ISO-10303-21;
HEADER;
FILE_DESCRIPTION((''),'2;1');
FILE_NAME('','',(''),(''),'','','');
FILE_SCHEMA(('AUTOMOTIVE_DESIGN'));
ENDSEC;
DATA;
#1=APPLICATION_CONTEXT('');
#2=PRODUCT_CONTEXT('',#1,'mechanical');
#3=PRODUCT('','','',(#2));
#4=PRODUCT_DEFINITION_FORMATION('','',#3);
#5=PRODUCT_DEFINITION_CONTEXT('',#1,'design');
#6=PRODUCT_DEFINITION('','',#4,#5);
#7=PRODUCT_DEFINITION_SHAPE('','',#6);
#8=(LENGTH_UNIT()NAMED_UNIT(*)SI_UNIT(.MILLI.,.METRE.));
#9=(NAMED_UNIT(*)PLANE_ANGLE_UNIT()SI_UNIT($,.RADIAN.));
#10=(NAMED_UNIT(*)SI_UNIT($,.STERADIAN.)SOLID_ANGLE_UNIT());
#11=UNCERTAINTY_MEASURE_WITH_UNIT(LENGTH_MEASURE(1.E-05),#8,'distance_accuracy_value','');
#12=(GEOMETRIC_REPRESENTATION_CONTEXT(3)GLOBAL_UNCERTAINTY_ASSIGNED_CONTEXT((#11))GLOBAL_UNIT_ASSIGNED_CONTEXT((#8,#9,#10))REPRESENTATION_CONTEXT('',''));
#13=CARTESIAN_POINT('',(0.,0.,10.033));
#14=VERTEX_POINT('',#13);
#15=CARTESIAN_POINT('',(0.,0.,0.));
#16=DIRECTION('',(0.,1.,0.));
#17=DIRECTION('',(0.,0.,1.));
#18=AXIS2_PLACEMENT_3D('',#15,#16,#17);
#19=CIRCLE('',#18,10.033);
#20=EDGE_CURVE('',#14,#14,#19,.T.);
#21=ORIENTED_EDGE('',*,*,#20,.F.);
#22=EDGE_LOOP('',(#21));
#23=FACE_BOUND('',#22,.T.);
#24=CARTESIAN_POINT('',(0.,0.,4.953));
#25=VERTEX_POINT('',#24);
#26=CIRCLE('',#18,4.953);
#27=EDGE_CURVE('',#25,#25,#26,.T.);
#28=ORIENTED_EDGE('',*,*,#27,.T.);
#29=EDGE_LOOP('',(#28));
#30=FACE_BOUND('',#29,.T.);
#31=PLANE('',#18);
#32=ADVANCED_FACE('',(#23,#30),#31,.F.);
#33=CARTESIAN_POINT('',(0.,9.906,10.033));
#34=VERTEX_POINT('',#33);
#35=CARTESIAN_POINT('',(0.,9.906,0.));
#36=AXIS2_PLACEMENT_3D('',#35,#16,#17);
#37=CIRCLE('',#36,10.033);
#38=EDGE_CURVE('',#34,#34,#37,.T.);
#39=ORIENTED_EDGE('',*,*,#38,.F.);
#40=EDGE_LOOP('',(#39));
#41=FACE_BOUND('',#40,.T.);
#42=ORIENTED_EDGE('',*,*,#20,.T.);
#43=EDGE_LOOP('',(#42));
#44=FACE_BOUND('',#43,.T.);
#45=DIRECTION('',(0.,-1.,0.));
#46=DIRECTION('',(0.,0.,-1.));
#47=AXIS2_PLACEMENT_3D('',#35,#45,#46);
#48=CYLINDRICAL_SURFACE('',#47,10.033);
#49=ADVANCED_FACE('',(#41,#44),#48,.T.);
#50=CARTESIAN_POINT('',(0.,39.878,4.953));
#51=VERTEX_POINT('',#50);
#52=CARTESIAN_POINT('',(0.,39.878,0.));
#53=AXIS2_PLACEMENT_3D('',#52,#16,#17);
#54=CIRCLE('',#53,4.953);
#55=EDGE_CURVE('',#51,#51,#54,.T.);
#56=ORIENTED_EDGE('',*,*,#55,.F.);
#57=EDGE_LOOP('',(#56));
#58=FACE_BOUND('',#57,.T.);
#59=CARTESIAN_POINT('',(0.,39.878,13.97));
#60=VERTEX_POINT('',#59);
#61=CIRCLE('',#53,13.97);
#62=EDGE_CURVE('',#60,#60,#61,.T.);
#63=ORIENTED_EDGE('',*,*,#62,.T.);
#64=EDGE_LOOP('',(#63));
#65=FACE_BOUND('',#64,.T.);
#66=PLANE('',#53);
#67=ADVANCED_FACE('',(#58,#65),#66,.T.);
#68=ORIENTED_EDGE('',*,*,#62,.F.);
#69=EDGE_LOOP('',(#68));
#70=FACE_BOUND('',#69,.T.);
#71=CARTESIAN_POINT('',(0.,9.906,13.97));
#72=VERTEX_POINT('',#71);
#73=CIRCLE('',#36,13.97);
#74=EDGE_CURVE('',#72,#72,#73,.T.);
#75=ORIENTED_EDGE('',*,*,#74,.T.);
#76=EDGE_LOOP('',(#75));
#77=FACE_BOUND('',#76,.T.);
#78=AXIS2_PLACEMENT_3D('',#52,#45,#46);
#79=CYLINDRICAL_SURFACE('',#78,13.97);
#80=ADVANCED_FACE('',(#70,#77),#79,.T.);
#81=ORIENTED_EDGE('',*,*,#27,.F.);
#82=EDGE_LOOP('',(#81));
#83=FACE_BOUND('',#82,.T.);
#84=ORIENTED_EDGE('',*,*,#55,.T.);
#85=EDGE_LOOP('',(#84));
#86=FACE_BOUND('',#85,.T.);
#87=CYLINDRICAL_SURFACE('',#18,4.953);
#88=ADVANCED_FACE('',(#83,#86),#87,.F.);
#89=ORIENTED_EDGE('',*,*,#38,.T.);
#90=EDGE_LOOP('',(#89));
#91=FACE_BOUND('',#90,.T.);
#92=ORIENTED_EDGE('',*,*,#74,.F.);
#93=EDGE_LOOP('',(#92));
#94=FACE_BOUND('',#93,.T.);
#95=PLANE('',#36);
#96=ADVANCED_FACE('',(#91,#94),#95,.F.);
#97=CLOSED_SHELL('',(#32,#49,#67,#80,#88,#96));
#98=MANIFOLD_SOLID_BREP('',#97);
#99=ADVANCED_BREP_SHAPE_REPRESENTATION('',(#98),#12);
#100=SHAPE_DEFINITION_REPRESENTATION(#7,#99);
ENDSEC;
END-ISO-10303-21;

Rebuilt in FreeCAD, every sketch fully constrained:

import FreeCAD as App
import Part
import Sketcher
Q = App.Units.Quantity

doc = App.newDocument("Part")
body = doc.addObject("PartDesign::Body", "Body")

# Sketch on XZ plane
sketch1 = body.newObject("Sketcher::SketchObject", "Sketch")
sketch1.AttachmentSupport = (doc.getObject("XZ_Plane"), [""])
sketch1.MapMode = "FlatFace"
sketch1.addGeometry(Part.Circle(App.Vector(0, 0, 0), App.Vector(0, 0, 1), 10), False)
sketch1.addConstraint([
    Sketcher.Constraint("Coincident", 0, 3, -1, 1),
    Sketcher.Constraint("Diameter", 0, Q("0.79 in")),
])
pad1 = body.newObject("PartDesign::Pad", "Pad")
pad1.Profile = sketch1
pad1.Length = Q("0.39 in")
pad1.Reversed = True

# Sketch on XZ plane
sketch2 = body.newObject("Sketcher::SketchObject", "Sketch001")
sketch2.AttachmentSupport = (doc.getObject("XZ_Plane"), [""])
sketch2.MapMode = "FlatFace"
sketch2.AttachmentOffset = App.Placement(App.Vector(0, 0, -0.39 * 25.4), App.Rotation())
sketch2.addGeometry(Part.Circle(App.Vector(0, 0, 0), App.Vector(0, 0, 1), 14), False)
sketch2.addConstraint([
    Sketcher.Constraint("Coincident", 0, 3, -1, 1),
    Sketcher.Constraint("Diameter", 0, Q("1.1 in")),
])
pad2 = body.newObject("PartDesign::Pad", "Pad001")
pad2.Profile = sketch2
pad2.Length = Q("1.18 in")
pad2.Reversed = True

# Sketch on XZ plane
sketch3 = body.newObject("Sketcher::SketchObject", "Sketch002")
sketch3.AttachmentSupport = (doc.getObject("XZ_Plane"), [""])
sketch3.MapMode = "FlatFace"
sketch3.AttachmentOffset = App.Placement(App.Vector(0, 0, -1.57 * 25.4), App.Rotation())
sketch3.addGeometry(Part.Circle(App.Vector(0, 0, 0), App.Vector(0, 0, 1), 5), False)
sketch3.addConstraint([
    Sketcher.Constraint("Coincident", 0, 3, -1, 1),
    Sketcher.Constraint("Diameter", 0, Q("0.39 in")),
])
pocket1 = body.newObject("PartDesign::Pocket", "Pocket")
pocket1.Profile = sketch3
pocket1.Type = "ThroughAll"
pocket1.Reversed = True

doc.recompute()
